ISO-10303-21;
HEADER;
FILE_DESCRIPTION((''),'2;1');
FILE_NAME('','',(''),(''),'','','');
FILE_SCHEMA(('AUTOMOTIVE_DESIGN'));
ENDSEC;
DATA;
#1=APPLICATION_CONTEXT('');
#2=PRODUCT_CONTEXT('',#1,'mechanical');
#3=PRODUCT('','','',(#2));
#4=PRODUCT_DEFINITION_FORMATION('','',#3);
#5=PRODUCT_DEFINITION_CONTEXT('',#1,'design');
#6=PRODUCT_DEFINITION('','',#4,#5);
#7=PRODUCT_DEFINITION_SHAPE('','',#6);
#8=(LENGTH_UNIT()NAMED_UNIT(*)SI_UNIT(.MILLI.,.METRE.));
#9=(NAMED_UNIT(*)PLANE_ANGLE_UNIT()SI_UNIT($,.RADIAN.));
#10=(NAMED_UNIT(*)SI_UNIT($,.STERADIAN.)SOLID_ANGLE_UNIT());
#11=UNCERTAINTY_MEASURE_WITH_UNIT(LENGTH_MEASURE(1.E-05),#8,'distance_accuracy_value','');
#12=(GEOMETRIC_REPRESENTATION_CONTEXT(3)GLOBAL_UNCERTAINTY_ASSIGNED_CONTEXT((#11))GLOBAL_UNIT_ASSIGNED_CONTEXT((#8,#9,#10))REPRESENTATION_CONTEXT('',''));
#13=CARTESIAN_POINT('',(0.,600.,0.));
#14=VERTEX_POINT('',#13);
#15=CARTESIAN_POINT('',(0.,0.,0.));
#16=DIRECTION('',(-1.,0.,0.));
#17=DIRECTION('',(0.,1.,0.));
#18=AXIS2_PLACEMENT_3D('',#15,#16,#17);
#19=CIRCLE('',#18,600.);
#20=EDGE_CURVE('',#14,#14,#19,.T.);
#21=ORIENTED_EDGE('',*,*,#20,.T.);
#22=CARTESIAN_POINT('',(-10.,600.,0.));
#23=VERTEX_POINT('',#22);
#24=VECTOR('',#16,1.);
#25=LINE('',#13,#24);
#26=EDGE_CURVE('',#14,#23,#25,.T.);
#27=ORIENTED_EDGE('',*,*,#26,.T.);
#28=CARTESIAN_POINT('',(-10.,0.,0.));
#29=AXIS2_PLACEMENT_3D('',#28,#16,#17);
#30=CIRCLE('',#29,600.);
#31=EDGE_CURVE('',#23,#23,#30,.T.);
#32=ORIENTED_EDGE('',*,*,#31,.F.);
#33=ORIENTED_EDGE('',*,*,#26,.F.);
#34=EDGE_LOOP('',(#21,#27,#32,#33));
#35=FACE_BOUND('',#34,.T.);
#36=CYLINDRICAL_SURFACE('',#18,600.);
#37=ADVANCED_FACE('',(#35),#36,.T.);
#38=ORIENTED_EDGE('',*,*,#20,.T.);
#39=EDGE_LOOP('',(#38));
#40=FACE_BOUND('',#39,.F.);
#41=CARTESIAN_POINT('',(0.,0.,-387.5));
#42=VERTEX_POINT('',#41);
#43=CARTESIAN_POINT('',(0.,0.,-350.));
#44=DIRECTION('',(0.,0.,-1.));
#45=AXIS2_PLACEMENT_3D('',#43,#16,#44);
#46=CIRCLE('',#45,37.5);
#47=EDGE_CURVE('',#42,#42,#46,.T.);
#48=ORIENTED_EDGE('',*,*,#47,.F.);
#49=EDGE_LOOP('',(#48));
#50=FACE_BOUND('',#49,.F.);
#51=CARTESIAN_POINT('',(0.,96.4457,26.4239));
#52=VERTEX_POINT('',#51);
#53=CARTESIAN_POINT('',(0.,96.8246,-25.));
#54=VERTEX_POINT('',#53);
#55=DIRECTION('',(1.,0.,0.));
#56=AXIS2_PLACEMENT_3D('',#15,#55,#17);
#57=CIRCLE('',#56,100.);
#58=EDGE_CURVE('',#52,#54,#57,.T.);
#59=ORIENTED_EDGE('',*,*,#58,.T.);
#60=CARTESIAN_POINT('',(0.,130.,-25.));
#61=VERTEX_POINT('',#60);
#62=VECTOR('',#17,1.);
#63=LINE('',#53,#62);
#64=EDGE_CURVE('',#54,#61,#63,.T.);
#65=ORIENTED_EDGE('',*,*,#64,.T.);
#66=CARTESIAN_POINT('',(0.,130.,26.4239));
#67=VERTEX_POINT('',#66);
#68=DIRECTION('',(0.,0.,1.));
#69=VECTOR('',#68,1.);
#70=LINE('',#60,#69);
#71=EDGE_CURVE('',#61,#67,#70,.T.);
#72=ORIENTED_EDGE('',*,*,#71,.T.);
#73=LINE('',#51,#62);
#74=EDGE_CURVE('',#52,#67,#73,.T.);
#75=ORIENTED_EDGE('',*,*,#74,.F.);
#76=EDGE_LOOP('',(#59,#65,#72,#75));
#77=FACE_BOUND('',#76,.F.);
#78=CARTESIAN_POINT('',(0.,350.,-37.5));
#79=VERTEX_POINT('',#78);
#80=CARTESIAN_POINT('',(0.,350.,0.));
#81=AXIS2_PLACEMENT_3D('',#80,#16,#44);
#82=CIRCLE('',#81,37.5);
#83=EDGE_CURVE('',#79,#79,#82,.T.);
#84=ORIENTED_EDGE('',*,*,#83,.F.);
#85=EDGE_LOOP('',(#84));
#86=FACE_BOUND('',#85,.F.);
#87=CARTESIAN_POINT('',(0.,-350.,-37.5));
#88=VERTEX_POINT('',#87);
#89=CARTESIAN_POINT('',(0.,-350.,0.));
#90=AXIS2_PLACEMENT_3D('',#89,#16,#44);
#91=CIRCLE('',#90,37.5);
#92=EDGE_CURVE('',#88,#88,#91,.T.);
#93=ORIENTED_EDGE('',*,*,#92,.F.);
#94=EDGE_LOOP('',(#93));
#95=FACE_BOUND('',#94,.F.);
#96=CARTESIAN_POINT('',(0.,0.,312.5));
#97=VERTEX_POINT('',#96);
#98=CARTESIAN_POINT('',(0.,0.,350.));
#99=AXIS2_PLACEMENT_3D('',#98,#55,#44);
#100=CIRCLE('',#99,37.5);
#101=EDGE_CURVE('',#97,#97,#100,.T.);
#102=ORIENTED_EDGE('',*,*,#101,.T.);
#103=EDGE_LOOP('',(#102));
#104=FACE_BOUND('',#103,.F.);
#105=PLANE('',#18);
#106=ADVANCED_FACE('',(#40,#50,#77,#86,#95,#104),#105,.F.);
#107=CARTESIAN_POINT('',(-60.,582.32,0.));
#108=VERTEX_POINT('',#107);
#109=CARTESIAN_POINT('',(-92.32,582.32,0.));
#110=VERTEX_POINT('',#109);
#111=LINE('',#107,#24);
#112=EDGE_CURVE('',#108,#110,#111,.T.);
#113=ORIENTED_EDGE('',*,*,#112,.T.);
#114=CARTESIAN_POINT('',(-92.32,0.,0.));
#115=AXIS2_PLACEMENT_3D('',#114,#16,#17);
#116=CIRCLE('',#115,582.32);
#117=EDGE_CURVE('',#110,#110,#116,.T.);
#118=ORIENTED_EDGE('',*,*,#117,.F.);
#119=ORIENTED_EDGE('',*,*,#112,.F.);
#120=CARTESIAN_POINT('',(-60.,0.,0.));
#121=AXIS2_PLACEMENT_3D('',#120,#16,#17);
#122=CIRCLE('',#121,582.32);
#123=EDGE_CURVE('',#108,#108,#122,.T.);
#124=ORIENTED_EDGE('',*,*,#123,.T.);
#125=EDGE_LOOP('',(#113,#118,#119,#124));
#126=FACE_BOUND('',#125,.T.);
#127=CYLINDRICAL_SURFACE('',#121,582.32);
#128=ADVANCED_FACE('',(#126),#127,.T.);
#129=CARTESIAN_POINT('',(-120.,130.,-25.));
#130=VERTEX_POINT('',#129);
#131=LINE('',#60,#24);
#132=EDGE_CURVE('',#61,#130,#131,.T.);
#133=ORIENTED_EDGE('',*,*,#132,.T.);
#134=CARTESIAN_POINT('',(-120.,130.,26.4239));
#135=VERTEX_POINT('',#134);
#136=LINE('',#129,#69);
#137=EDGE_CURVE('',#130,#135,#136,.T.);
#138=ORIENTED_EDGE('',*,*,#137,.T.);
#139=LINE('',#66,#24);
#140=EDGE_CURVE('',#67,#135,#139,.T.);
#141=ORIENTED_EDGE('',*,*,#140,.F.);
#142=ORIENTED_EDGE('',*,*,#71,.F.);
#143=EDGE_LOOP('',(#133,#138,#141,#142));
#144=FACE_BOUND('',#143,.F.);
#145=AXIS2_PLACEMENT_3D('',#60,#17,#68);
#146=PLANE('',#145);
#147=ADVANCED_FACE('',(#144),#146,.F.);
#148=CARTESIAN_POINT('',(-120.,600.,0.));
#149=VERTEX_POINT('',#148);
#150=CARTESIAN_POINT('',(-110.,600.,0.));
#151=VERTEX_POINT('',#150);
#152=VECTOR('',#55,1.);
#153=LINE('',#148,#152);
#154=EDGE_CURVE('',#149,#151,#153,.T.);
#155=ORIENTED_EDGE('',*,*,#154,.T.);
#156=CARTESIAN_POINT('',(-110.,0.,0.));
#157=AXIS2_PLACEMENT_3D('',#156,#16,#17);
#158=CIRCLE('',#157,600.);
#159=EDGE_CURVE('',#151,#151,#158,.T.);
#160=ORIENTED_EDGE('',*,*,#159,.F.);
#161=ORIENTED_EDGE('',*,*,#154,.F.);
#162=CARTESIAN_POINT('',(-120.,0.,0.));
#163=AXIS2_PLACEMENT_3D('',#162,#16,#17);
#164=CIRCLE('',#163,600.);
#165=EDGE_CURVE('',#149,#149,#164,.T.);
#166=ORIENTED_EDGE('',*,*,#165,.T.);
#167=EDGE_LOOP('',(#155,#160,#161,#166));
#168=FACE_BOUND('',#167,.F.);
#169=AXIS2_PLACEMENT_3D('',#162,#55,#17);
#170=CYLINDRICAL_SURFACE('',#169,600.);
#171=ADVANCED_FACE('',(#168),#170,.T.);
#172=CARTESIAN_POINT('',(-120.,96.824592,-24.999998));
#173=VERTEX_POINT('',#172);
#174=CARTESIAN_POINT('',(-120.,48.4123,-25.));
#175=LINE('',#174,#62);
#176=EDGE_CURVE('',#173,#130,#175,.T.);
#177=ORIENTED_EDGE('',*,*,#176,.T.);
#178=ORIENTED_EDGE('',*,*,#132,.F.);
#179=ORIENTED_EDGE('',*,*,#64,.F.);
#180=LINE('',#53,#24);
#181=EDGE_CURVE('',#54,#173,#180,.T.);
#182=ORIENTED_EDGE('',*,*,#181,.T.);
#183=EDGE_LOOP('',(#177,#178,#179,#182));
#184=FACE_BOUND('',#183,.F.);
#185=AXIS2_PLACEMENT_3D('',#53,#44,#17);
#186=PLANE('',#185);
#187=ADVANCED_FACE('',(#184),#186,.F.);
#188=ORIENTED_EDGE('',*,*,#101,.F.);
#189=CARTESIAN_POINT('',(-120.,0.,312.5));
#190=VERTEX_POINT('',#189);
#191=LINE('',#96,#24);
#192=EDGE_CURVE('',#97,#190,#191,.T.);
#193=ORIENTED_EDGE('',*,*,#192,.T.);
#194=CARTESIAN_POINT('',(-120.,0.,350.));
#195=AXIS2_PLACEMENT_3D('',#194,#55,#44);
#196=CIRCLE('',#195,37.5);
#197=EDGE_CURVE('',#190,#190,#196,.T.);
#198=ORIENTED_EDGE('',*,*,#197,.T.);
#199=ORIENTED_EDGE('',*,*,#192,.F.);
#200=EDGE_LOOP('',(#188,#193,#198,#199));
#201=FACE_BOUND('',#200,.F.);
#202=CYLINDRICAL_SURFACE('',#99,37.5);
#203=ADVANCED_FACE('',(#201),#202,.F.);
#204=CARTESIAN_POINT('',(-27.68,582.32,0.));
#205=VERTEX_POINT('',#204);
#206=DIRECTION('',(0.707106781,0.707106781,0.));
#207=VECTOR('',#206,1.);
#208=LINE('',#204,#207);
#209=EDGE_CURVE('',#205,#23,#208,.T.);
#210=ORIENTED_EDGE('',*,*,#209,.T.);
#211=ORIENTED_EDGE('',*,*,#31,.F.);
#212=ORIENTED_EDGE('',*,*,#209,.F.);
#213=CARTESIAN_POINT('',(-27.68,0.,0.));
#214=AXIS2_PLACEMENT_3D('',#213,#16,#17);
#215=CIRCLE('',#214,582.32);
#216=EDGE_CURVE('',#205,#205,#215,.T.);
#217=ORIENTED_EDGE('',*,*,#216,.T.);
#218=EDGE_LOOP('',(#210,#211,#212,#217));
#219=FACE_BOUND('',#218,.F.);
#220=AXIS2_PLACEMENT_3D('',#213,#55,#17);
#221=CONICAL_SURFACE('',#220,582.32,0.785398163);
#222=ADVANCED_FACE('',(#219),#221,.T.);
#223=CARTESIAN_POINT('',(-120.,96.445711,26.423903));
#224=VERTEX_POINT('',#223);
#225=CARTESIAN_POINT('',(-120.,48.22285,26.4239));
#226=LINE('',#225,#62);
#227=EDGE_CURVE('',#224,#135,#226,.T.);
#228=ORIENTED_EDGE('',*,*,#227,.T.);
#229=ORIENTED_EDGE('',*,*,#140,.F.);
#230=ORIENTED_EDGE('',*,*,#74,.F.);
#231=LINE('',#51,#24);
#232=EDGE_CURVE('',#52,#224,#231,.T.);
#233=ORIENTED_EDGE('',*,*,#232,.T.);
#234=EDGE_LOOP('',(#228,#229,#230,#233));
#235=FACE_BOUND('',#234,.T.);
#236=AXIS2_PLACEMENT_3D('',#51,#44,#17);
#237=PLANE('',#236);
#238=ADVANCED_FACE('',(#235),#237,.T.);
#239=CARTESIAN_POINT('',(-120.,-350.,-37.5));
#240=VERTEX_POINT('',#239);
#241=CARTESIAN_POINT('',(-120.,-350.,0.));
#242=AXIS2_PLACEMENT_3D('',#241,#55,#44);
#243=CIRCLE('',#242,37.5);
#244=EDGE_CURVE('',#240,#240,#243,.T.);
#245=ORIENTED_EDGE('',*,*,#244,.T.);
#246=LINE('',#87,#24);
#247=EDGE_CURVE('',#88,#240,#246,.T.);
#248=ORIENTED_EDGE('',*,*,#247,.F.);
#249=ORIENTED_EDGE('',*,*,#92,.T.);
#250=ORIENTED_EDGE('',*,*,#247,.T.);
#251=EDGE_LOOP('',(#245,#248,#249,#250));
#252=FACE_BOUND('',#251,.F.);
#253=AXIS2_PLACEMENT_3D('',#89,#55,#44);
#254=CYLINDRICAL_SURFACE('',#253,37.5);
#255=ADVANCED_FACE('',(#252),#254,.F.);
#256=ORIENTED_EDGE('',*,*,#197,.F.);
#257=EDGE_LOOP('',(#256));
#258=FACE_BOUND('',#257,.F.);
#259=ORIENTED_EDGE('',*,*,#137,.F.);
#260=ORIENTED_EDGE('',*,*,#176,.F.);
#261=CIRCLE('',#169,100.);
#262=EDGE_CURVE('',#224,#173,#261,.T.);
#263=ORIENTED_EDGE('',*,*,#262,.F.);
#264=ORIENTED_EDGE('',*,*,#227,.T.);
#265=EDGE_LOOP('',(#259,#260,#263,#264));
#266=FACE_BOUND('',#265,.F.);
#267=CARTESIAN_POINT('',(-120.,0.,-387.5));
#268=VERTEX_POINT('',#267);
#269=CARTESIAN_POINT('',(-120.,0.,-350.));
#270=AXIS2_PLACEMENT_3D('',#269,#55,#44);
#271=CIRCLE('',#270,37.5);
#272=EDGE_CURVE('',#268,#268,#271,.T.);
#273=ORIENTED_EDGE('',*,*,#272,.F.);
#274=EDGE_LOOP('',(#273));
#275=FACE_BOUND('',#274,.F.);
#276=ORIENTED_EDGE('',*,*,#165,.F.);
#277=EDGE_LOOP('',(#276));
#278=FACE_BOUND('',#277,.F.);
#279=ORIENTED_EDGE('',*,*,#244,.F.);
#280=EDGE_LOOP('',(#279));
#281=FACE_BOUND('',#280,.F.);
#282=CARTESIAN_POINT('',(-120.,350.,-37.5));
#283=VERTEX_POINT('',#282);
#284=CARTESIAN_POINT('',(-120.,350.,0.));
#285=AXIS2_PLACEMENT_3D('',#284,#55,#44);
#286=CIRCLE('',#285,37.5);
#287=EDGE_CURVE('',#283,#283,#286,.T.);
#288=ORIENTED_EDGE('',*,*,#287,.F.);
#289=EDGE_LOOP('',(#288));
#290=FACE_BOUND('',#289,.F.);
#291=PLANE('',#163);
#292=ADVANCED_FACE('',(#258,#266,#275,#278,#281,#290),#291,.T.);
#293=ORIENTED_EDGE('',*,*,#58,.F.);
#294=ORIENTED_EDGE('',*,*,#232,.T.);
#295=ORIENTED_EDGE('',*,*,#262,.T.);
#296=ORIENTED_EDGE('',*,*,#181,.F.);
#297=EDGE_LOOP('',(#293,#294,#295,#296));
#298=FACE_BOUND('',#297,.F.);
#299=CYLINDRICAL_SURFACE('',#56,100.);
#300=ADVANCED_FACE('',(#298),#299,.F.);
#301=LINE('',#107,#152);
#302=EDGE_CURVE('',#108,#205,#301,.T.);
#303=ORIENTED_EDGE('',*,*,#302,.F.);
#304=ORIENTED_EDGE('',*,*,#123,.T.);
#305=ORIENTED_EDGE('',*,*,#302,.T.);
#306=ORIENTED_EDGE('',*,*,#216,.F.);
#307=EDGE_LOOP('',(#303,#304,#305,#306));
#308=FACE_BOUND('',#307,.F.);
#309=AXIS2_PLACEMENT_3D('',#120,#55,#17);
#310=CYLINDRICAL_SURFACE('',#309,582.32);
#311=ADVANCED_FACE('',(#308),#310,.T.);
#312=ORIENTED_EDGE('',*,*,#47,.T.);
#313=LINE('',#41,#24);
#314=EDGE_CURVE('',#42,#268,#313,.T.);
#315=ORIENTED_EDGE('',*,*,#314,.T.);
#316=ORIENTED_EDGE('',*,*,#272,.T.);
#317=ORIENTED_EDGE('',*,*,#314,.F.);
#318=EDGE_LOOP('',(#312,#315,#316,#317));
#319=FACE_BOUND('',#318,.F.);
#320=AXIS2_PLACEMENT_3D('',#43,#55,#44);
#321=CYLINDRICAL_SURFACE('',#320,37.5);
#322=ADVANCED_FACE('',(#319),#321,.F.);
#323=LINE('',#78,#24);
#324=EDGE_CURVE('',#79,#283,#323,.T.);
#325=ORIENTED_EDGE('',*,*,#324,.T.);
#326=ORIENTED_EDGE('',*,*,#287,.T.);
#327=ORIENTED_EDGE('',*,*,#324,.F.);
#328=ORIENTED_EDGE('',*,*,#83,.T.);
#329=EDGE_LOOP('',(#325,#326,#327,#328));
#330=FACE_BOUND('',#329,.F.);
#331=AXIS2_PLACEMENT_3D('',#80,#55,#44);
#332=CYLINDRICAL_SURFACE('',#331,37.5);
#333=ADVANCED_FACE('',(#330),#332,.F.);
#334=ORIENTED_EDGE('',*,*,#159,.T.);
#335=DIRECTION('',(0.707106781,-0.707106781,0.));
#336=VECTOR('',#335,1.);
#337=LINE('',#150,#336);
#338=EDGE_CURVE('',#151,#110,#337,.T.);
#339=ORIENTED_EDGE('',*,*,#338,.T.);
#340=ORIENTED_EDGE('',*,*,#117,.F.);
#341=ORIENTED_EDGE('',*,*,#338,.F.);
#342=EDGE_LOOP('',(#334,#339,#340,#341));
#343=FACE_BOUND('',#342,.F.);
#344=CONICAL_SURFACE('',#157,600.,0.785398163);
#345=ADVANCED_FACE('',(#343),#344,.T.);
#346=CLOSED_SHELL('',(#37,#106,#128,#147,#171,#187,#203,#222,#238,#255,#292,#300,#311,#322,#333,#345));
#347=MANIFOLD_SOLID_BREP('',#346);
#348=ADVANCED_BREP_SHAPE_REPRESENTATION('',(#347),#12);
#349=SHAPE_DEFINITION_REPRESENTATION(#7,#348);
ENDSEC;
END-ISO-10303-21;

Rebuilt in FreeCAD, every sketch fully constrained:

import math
import FreeCAD as App
import Part
import Sketcher

V = App.Vector
Q = App.Units.Quantity

doc = App.newDocument("Part")
body = doc.addObject("PartDesign::Body", "Body")

sketch1 = body.newObject("Sketcher::SketchObject", "Sketch")
sketch1.AttachmentSupport = (doc.getObject("XY_Plane"), [""])
sketch1.MapMode = "FlatFace"
sketch1.addGeometry(Part.LineSegment(V(-120, 0, 0), V(0, 0, 0)), False)
sketch1.addGeometry(Part.LineSegment(V(0, 0, 0), V(0, 600, 0)), False)
sketch1.addGeometry(Part.LineSegment(V(0, 600, 0), V(-10, 600, 0)), False)
sketch1.addGeometry(Part.LineSegment(V(-10, 600, 0), V(-28, 582, 0)), False)
sketch1.addGeometry(Part.LineSegment(V(-28, 582, 0), V(-92, 582, 0)), False)
sketch1.addGeometry(Part.LineSegment(V(-92, 582, 0), V(-110, 600, 0)), False)
sketch1.addGeometry(Part.LineSegment(V(-110, 600, 0), V(-120, 600, 0)), False)
sketch1.addGeometry(Part.LineSegment(V(-120, 600, 0), V(-120, 0, 0)), False)
sketch1.addConstraint(Sketcher.Constraint("Coincident", 0, 2, 1, 1))
sketch1.addConstraint(Sketcher.Constraint("Coincident", 1, 2, 2, 1))
sketch1.addConstraint(Sketcher.Constraint("Coincident", 2, 2, 3, 1))
sketch1.addConstraint(Sketcher.Constraint("Coincident", 3, 2, 4, 1))
sketch1.addConstraint(Sketcher.Constraint("Coincident", 4, 2, 5, 1))
sketch1.addConstraint(Sketcher.Constraint("Coincident", 5, 2, 6, 1))
sketch1.addConstraint(Sketcher.Constraint("Coincident", 6, 2, 7, 1))
sketch1.addConstraint(Sketcher.Constraint("Coincident", 7, 2, 0, 1))
sketch1.addConstraint(Sketcher.Constraint("Horizontal", 0))
sketch1.addConstraint(Sketcher.Constraint("Vertical", 1))
sketch1.addConstraint(Sketcher.Constraint("Horizontal", 2))
sketch1.addConstraint(Sketcher.Constraint("Horizontal", 4))
sketch1.addConstraint(Sketcher.Constraint("Horizontal", 6))
sketch1.addConstraint(Sketcher.Constraint("Vertical", 7))
sketch1.addConstraint(Sketcher.Constraint("Coincident", 0, 2, -1, 1))
sketch1.addConstraint(Sketcher.Constraint("Perpendicular", 3, 5))
sketch1.addConstraint(Sketcher.Constraint("Horizontal", 2, 2, 5, 2))
sketch1.addConstraint(Sketcher.Constraint("Equal", 2, 6))
sketch1.addConstraint(Sketcher.Constraint("Equal", 3, 5))
sketch1.addConstraint(Sketcher.Constraint("DistanceX", 0, 1, 0, 2, Q("120 mm")))
sketch1.addConstraint(Sketcher.Constraint("DistanceX", 2, 2, 2, 1, Q("10 mm")))
sketch1.addConstraint(Sketcher.Constraint("DistanceY", 1, 1, 1, 2, Q("600 mm")))
sketch1.addConstraint(Sketcher.Constraint("DistanceX", 4, 2, 4, 1, Q("64.64 mm")))
revolution = body.newObject("PartDesign::Revolution", "Revolution")
revolution.Profile = sketch1
revolution.ReferenceAxis = (sketch1, ["H_Axis"])
revolution.Angle = 360

sketch2 = body.newObject("Sketcher::SketchObject", "Sketch001")
sketch2.AttachmentSupport = (doc.getObject("YZ_Plane"), [""])
sketch2.MapMode = "FlatFace"
sketch2.addGeometry(Part.Circle(V(0, 0, 0), V(0, 0, 1), 100), False)
sketch2.addConstraint(Sketcher.Constraint("Coincident", 0, 3, -1, 1))
sketch2.addConstraint(Sketcher.Constraint("Diameter", 0, Q("200 mm")))
pocket1 = body.newObject("PartDesign::Pocket", "Pocket")
pocket1.Profile = sketch2
pocket1.Type = "ThroughAll"

sketch3 = body.newObject("Sketcher::SketchObject", "Sketch002")
sketch3.AttachmentSupport = (doc.getObject("YZ_Plane"), [""])
sketch3.MapMode = "FlatFace"
sketch3.addGeometry(Part.ArcOfCircle(Part.Circle(V(0, 0, 0), V(0, 0, 1), 100), math.radians(-14), math.radians(15)), False)
sketch3.addGeometry(Part.LineSegment(V(97, -25, 0), V(130, -25, 0)), False)
sketch3.addGeometry(Part.LineSegment(V(130, -25, 0), V(130, 26, 0)), False)
sketch3.addGeometry(Part.LineSegment(V(130, 26, 0), V(96, 26, 0)), False)
sketch3.addConstraint(Sketcher.Constraint("Coincident", 0, 1, 1, 1))
sketch3.addConstraint(Sketcher.Constraint("Coincident", 1, 2, 2, 1))
sketch3.addConstraint(Sketcher.Constraint("Coincident", 2, 2, 3, 1))
sketch3.addConstraint(Sketcher.Constraint("Coincident", 3, 2, 0, 2))
sketch3.addConstraint(Sketcher.Constraint("Horizontal", 1))
sketch3.addConstraint(Sketcher.Constraint("Vertical", 2))
sketch3.addConstraint(Sketcher.Constraint("Horizontal", 3))
sketch3.addConstraint(Sketcher.Constraint("Coincident", 0, 3, -1, 1))
sketch3.addConstraint(Sketcher.Constraint("DistanceY", 0, 1, -1, 1, Q("25 mm")))
sketch3.addConstraint(Sketcher.Constraint("DistanceX", -1, 1, 1, 2, Q("130 mm")))
sketch3.addConstraint(Sketcher.Constraint("Radius", 0, Q("100 mm")))
sketch3.addConstraint(Sketcher.Constraint("DistanceY", 2, 1, 2, 2, Q("51.424 mm")))
pocket2 = body.newObject("PartDesign::Pocket", "Pocket001")
pocket2.Profile = sketch3
pocket2.Type = "ThroughAll"

sketch4 = body.newObject("Sketcher::SketchObject", "Sketch003")
sketch4.AttachmentSupport = (doc.getObject("YZ_Plane"), [""])
sketch4.MapMode = "FlatFace"
sketch4.addGeometry(Part.Circle(V(0, -350, 0), V(0, 0, 1), 38), False)
sketch4.addGeometry(Part.Circle(V(350, 0, 0), V(0, 0, 1), 38), False)
sketch4.addGeometry(Part.Circle(V(0, 350, 0), V(0, 0, 1), 38), False)
sketch4.addGeometry(Part.Circle(V(-350, 0, 0), V(0, 0, 1), 38), False)
sketch4.addConstraint(Sketcher.Constraint("Equal", 0, 1))
sketch4.addConstraint(Sketcher.Constraint("Equal", 1, 2))
sketch4.addConstraint(Sketcher.Constraint("Equal", 2, 3))
sketch4.addConstraint(Sketcher.Constraint("Symmetric", 0, 3, 2, 3, -1, 1))
sketch4.addConstraint(Sketcher.Constraint("Symmetric", 1, 3, 3, 3, -1, 1))
sketch4.addConstraint(Sketcher.Constraint("PointOnObject", 0, 3, -2))
sketch4.addConstraint(Sketcher.Constraint("PointOnObject", 1, 3, -1))
sketch4.addConstraint(Sketcher.Constraint("Diameter", 0, Q("75 mm")))
sketch4.addConstraint(Sketcher.Constraint("DistanceY", 0, 3, -1, 1, Q("350 mm")))
sketch4.addConstraint(Sketcher.Constraint("DistanceX", -1, 1, 1, 3, Q("350 mm")))
pocket3 = body.newObject("PartDesign::Pocket", "Pocket002")
pocket3.Profile = sketch4
pocket3.Type = "ThroughAll"

doc.recompute()
